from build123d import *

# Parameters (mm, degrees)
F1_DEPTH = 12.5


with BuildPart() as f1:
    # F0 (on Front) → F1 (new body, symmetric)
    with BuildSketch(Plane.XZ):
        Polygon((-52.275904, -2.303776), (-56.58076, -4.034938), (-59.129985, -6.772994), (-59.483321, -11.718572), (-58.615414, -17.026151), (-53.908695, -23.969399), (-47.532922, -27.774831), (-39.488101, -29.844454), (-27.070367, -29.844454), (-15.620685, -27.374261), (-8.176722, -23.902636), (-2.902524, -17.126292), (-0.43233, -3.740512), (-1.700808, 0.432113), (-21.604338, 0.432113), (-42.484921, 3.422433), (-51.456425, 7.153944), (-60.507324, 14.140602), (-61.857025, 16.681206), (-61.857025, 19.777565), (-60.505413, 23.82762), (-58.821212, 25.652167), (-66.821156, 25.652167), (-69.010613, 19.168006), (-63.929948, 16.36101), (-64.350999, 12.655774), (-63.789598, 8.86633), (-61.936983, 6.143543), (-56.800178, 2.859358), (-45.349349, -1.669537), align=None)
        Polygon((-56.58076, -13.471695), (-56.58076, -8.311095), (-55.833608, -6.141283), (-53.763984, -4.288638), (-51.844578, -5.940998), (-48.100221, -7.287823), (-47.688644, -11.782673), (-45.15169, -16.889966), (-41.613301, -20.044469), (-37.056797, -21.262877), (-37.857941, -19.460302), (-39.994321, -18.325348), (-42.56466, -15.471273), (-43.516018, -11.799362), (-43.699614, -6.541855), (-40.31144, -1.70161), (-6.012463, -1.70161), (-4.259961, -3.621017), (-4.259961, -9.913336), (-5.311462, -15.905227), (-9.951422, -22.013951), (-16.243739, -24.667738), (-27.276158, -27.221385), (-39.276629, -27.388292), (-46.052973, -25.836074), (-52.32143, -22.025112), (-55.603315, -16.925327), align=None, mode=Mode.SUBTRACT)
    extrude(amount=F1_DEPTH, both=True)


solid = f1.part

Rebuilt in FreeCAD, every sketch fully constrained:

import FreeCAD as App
import Part
import Sketcher

V = App.Vector
Q = App.Units.Quantity

doc = App.newDocument("Part")
body = doc.addObject("PartDesign::Body", "Body")

# Sketch on XZ plane
sketch1 = body.newObject("Sketcher::SketchObject", "Sketch")
sketch1.AttachmentSupport = (doc.getObject("XZ_Plane"), [""])
sketch1.MapMode = "FlatFace"
sketch1.addGeometry(Part.LineSegment(V(-52.275904, -2.303776, 0), V(-56.58076, -4.034938, 0)), False)
sketch1.addGeometry(Part.LineSegment(V(-56.58076, -4.034938, 0), V(-59.129985, -6.772994, 0)), False)
sketch1.addGeometry(Part.LineSegment(V(-59.129985, -6.772994, 0), V(-59.483321, -11.718572, 0)), False)
sketch1.addGeometry(Part.LineSegment(V(-59.483321, -11.718572, 0), V(-58.615414, -17.026151, 0)), False)
sketch1.addGeometry(Part.LineSegment(V(-58.615414, -17.026151, 0), V(-53.908695, -23.969399, 0)), False)
sketch1.addGeometry(Part.LineSegment(V(-53.908695, -23.969399, 0), V(-47.532922, -27.774831, 0)), False)
sketch1.addGeometry(Part.LineSegment(V(-47.532922, -27.774831, 0), V(-39.488101, -29.844454, 0)), False)
sketch1.addGeometry(Part.LineSegment(V(-39.488101, -29.844454, 0), V(-27.070367, -29.844454, 0)), False)
sketch1.addGeometry(Part.LineSegment(V(-27.070367, -29.844454, 0), V(-15.620685, -27.374261, 0)), False)
sketch1.addGeometry(Part.LineSegment(V(-15.620685, -27.374261, 0), V(-8.176722, -23.902636, 0)), False)
sketch1.addGeometry(Part.LineSegment(V(-8.176722, -23.902636, 0), V(-2.902524, -17.126292, 0)), False)
sketch1.addGeometry(Part.LineSegment(V(-2.902524, -17.126292, 0), V(-0.43233, -3.740512, 0)), False)
sketch1.addGeometry(Part.LineSegment(V(-0.43233, -3.740512, 0), V(-1.700808, 0.432113, 0)), False)
sketch1.addGeometry(Part.LineSegment(V(-1.700808, 0.432113, 0), V(-21.604338, 0.432113, 0)), False)
sketch1.addGeometry(Part.LineSegment(V(-21.604338, 0.432113, 0), V(-42.484921, 3.422433, 0)), False)
sketch1.addGeometry(Part.LineSegment(V(-42.484921, 3.422433, 0), V(-51.456425, 7.153944, 0)), False)
sketch1.addGeometry(Part.LineSegment(V(-51.456425, 7.153944, 0), V(-60.507324, 14.140602, 0)), False)
sketch1.addGeometry(Part.LineSegment(V(-60.507324, 14.140602, 0), V(-61.857025, 16.681206, 0)), False)
sketch1.addGeometry(Part.LineSegment(V(-61.857025, 16.681206, 0), V(-61.857025, 19.777565, 0)), False)
sketch1.addGeometry(Part.LineSegment(V(-61.857025, 19.777565, 0), V(-60.505413, 23.82762, 0)), False)
sketch1.addGeometry(Part.LineSegment(V(-60.505413, 23.82762, 0), V(-58.821212, 25.652167, 0)), False)
sketch1.addGeometry(Part.LineSegment(V(-58.821212, 25.652167, 0), V(-66.821156, 25.652167, 0)), False)
sketch1.addGeometry(Part.LineSegment(V(-66.821156, 25.652167, 0), V(-69.010613, 19.168006, 0)), False)
sketch1.addGeometry(Part.LineSegment(V(-69.010613, 19.168006, 0), V(-63.929948, 16.36101, 0)), False)
sketch1.addGeometry(Part.LineSegment(V(-63.929948, 16.36101, 0), V(-64.350999, 12.655774, 0)), False)
sketch1.addGeometry(Part.LineSegment(V(-64.350999, 12.655774, 0), V(-63.789598, 8.86633, 0)), False)
sketch1.addGeometry(Part.LineSegment(V(-63.789598, 8.86633, 0), V(-61.936983, 6.143543, 0)), False)
sketch1.addGeometry(Part.LineSegment(V(-61.936983, 6.143543, 0), V(-56.800178, 2.859358, 0)), False)
sketch1.addGeometry(Part.LineSegment(V(-56.800178, 2.859358, 0), V(-45.349349, -1.669537, 0)), False)
sketch1.addGeometry(Part.LineSegment(V(-45.349349, -1.669537, 0), V(-52.275904, -2.303776, 0)), False)
sketch1.addGeometry(Part.LineSegment(V(-55.603315, -16.925327, 0), V(-56.58076, -13.471695, 0)), False)
sketch1.addGeometry(Part.LineSegment(V(-56.58076, -13.471695, 0), V(-56.58076, -8.311095, 0)), False)
sketch1.addGeometry(Part.LineSegment(V(-56.58076, -8.311095, 0), V(-55.833608, -6.141283, 0)), False)
sketch1.addGeometry(Part.LineSegment(V(-55.833608, -6.141283, 0), V(-53.763984, -4.288638, 0)), False)
sketch1.addGeometry(Part.LineSegment(V(-53.763984, -4.288638, 0), V(-51.844578, -5.940998, 0)), False)
sketch1.addGeometry(Part.LineSegment(V(-51.844578, -5.940998, 0), V(-48.100221, -7.287823, 0)), False)
sketch1.addGeometry(Part.LineSegment(V(-48.100221, -7.287823, 0), V(-47.688644, -11.782673, 0)), False)
sketch1.addGeometry(Part.LineSegment(V(-47.688644, -11.782673, 0), V(-45.15169, -16.889966, 0)), False)
sketch1.addGeometry(Part.LineSegment(V(-45.15169, -16.889966, 0), V(-41.613301, -20.044469, 0)), False)
sketch1.addGeometry(Part.LineSegment(V(-41.613301, -20.044469, 0), V(-37.056797, -21.262877, 0)), False)
sketch1.addGeometry(Part.LineSegment(V(-37.056797, -21.262877, 0), V(-37.857941, -19.460302, 0)), False)
sketch1.addGeometry(Part.LineSegment(V(-37.857941, -19.460302, 0), V(-39.994321, -18.325348, 0)), False)
sketch1.addGeometry(Part.LineSegment(V(-39.994321, -18.325348, 0), V(-42.56466, -15.471273, 0)), False)
sketch1.addGeometry(Part.LineSegment(V(-42.56466, -15.471273, 0), V(-43.516018, -11.799362, 0)), False)
sketch1.addGeometry(Part.LineSegment(V(-43.516018, -11.799362, 0), V(-43.699614, -6.541855, 0)), False)
sketch1.addGeometry(Part.LineSegment(V(-43.699614, -6.541855, 0), V(-40.31144, -1.70161, 0)), False)
sketch1.addGeometry(Part.LineSegment(V(-40.31144, -1.70161, 0), V(-6.012463, -1.70161, 0)), False)
sketch1.addGeometry(Part.LineSegment(V(-6.012463, -1.70161, 0), V(-4.259961, -3.621017, 0)), False)
sketch1.addGeometry(Part.LineSegment(V(-4.259961, -3.621017, 0), V(-4.259961, -9.913336, 0)), False)
sketch1.addGeometry(Part.LineSegment(V(-4.259961, -9.913336, 0), V(-5.311462, -15.905227, 0)), False)
sketch1.addGeometry(Part.LineSegment(V(-5.311462, -15.905227, 0), V(-9.951422, -22.013951, 0)), False)
sketch1.addGeometry(Part.LineSegment(V(-9.951422, -22.013951, 0), V(-16.243739, -24.667738, 0)), False)
sketch1.addGeometry(Part.LineSegment(V(-16.243739, -24.667738, 0), V(-27.276158, -27.221385, 0)), False)
sketch1.addGeometry(Part.LineSegment(V(-27.276158, -27.221385, 0), V(-39.276629, -27.388292, 0)), False)
sketch1.addGeometry(Part.LineSegment(V(-39.276629, -27.388292, 0), V(-46.052973, -25.836074, 0)), False)
sketch1.addGeometry(Part.LineSegment(V(-46.052973, -25.836074, 0), V(-52.32143, -22.025112, 0)), False)
sketch1.addGeometry(Part.LineSegment(V(-52.32143, -22.025112, 0), V(-55.603315, -16.925327, 0)), False)
sketch1.addConstraint(Sketcher.Constraint("Coincident", 0, 2, 1, 1))
sketch1.addConstraint(Sketcher.Constraint("Coincident", 1, 2, 2, 1))
sketch1.addConstraint(Sketcher.Constraint("Coincident", 2, 2, 3, 1))
sketch1.addConstraint(Sketcher.Constraint("Coincident", 3, 2, 4, 1))
sketch1.addConstraint(Sketcher.Constraint("Coincident", 4, 2, 5, 1))
sketch1.addConstraint(Sketcher.Constraint("Coincident", 5, 2, 6, 1))
sketch1.addConstraint(Sketcher.Constraint("Coincident", 6, 2, 7, 1))
sketch1.addConstraint(Sketcher.Constraint("Coincident", 7, 2, 8, 1))
sketch1.addConstraint(Sketcher.Constraint("Coincident", 8, 2, 9, 1))
sketch1.addConstraint(Sketcher.Constraint("Coincident", 9, 2, 10, 1))
sketch1.addConstraint(Sketcher.Constraint("Coincident", 10, 2, 11, 1))
sketch1.addConstraint(Sketcher.Constraint("Coincident", 11, 2, 12, 1))
sketch1.addConstraint(Sketcher.Constraint("Coincident", 12, 2, 13, 1))
sketch1.addConstraint(Sketcher.Constraint("Coincident", 13, 2, 14, 1))
sketch1.addConstraint(Sketcher.Constraint("Coincident", 14, 2, 15, 1))
sketch1.addConstraint(Sketcher.Constraint("Coincident", 15, 2, 16, 1))
sketch1.addConstraint(Sketcher.Constraint("Coincident", 16, 2, 17, 1))
sketch1.addConstraint(Sketcher.Constraint("Coincident", 17, 2, 18, 1))
sketch1.addConstraint(Sketcher.Constraint("Coincident", 18, 2, 19, 1))
sketch1.addConstraint(Sketcher.Constraint("Coincident", 19, 2, 20, 1))
sketch1.addConstraint(Sketcher.Constraint("Coincident", 20, 2, 21, 1))
sketch1.addConstraint(Sketcher.Constraint("Coincident", 21, 2, 22, 1))
sketch1.addConstraint(Sketcher.Constraint("Coincident", 22, 2, 23, 1))
sketch1.addConstraint(Sketcher.Constraint("Coincident", 23, 2, 24, 1))
sketch1.addConstraint(Sketcher.Constraint("Coincident", 24, 2, 25, 1))
sketch1.addConstraint(Sketcher.Constraint("Coincident", 25, 2, 26, 1))
sketch1.addConstraint(Sketcher.Constraint("Coincident", 26, 2, 27, 1))
sketch1.addConstraint(Sketcher.Constraint("Coincident", 27, 2, 28, 1))
sketch1.addConstraint(Sketcher.Constraint("Coincident", 28, 2, 29, 1))
sketch1.addConstraint(Sketcher.Constraint("Coincident", 29, 2, 0, 1))
sketch1.addConstraint(Sketcher.Constraint("Coincident", 30, 2, 31, 1))
sketch1.addConstraint(Sketcher.Constraint("Coincident", 31, 2, 32, 1))
sketch1.addConstraint(Sketcher.Constraint("Coincident", 32, 2, 33, 1))
sketch1.addConstraint(Sketcher.Constraint("Coincident", 33, 2, 34, 1))
sketch1.addConstraint(Sketcher.Constraint("Coincident", 34, 2, 35, 1))
sketch1.addConstraint(Sketcher.Constraint("Coincident", 35, 2, 36, 1))
sketch1.addConstraint(Sketcher.Constraint("Coincident", 36, 2, 37, 1))
sketch1.addConstraint(Sketcher.Constraint("Coincident", 37, 2, 38, 1))
sketch1.addConstraint(Sketcher.Constraint("Coincident", 38, 2, 39, 1))
sketch1.addConstraint(Sketcher.Constraint("Coincident", 39, 2, 40, 1))
sketch1.addConstraint(Sketcher.Constraint("Coincident", 40, 2, 41, 1))
sketch1.addConstraint(Sketcher.Constraint("Coincident", 41, 2, 42, 1))
sketch1.addConstraint(Sketcher.Constraint("Coincident", 42, 2, 43, 1))
sketch1.addConstraint(Sketcher.Constraint("Coincident", 43, 2, 44, 1))
sketch1.addConstraint(Sketcher.Constraint("Coincident", 44, 2, 45, 1))
sketch1.addConstraint(Sketcher.Constraint("Coincident", 45, 2, 46, 1))
sketch1.addConstraint(Sketcher.Constraint("Coincident", 46, 2, 47, 1))
sketch1.addConstraint(Sketcher.Constraint("Coincident", 47, 2, 48, 1))
sketch1.addConstraint(Sketcher.Constraint("Coincident", 48, 2, 49, 1))
sketch1.addConstraint(Sketcher.Constraint("Coincident", 49, 2, 50, 1))
sketch1.addConstraint(Sketcher.Constraint("Coincident", 50, 2, 51, 1))
sketch1.addConstraint(Sketcher.Constraint("Coincident", 51, 2, 52, 1))
sketch1.addConstraint(Sketcher.Constraint("Coincident", 52, 2, 53, 1))
sketch1.addConstraint(Sketcher.Constraint("Coincident", 53, 2, 54, 1))
sketch1.addConstraint(Sketcher.Constraint("Coincident", 54, 2, 55, 1))
sketch1.addConstraint(Sketcher.Constraint("Coincident", 55, 2, 56, 1))
sketch1.addConstraint(Sketcher.Constraint("Coincident", 56, 2, 30, 1))
sketch1.addConstraint(Sketcher.Constraint("Horizontal", 7))
sketch1.addConstraint(Sketcher.Constraint("Horizontal", 13))
sketch1.addConstraint(Sketcher.Constraint("Vertical", 18))
sketch1.addConstraint(Sketcher.Constraint("Horizontal", 21))
sketch1.addConstraint(Sketcher.Constraint("Vertical", 31))
sketch1.addConstraint(Sketcher.Constraint("Horizontal", 46))
sketch1.addConstraint(Sketcher.Constraint("Vertical", 48))
sketch1.addConstraint(Sketcher.Constraint("Perpendicular", 29, 36))
sketch1.addConstraint(Sketcher.Constraint("Vertical", 0, 2, 30, 2))
sketch1.addConstraint(Sketcher.Constraint("Angle", 44, Q("91.999998 deg")))
sketch1.addConstraint(Sketcher.Constraint("DistanceY", 31, 1, 31, 2, 5.1606))
sketch1.addConstraint(Sketcher.Constraint("DistanceX", 24, 2, -1, 1, 64.350999))
sketch1.addConstraint(Sketcher.Constraint("DistanceX", 1, 2, 33, 2, 5.366001))
sketch1.addConstraint(Sketcher.Constraint("Distance", 4, 8.3882))
sketch1.addConstraint(Sketcher.Constraint("DistanceX", 13, 2, 13, 1, 19.90353))
sketch1.addConstraint(Sketcher.Constraint("DistanceY", 18, 1, 18, 2, 3.096359))
sketch1.addConstraint(Sketcher.Constraint("DistanceY", 48, 2, 48, 1, 6.292319))
sketch1.addConstraint(Sketcher.Constraint("DistanceY", 4, 2, -1, 1, 23.969399))
sketch1.addConstraint(Sketcher.Constraint("DistanceX", 6, 2, -1, 1, 39.488101))
sketch1.addConstraint(Sketcher.Constraint("DistanceX", 38, 2, -1, 1, 41.613301))
sketch1.addConstraint(Sketcher.Constraint("DistanceY", 40, 2, -1, 1, 19.460302))
sketch1.addConstraint(Sketcher.Constraint("DistanceX", 2, 2, 5, 2, 11.950399))
sketch1.addConstraint(Sketcher.Constraint("DistanceX", 5, 2, 9, 2, 39.3562))
sketch1.addConstraint(Sketcher.Constraint("DistanceX", 2, 2, 14, 2, 16.9984))
sketch1.addConstraint(Sketcher.Constraint("DistanceX", 16, 2, 15, 2, 9.050899))
sketch1.addConstraint(Sketcher.Constraint("DistanceX", 17, 2, 16, 2, 1.349701))
sketch1.addConstraint(Sketcher.Constraint("DistanceY", 1, 2, 17, 2, 23.4542))
sketch1.addConstraint(Sketcher.Constraint("DistanceX", 19, 2, 20, 2, 1.684201))
sketch1.addConstraint(Sketcher.Constraint("DistanceY", 18, 2, 20, 2, 5.874602))
sketch1.addConstraint(Sketcher.Constraint("DistanceY", 17, 2, 22, 2, 2.4868))
sketch1.addConstraint(Sketcher.Constraint("DistanceX", 22, 2, 19, 2, 8.5052))
sketch1.addConstraint(Sketcher.Constraint("DistanceX", 24, 2, 25, 2, 0.561401))
sketch1.addConstraint(Sketcher.Constraint("DistanceY", 26, 2, 15, 2, 1.010401))
sketch1.addConstraint(Sketcher.Constraint("DistanceY", 0, 2, 28, 2, 2.365401))
sketch1.addConstraint(Sketcher.Constraint("DistanceY", 30, 2, 1, 2, 6.698701))
sketch1.addConstraint(Sketcher.Constraint("DistanceY", 33, 2, 0, 2, 0.2537))
sketch1.addConstraint(Sketcher.Constraint("DistanceY", 42, 2, 36, 2, 3.6886))
sketch1.addConstraint(Sketcher.Constraint("DistanceY", 11, 2, 46, 2, 2.038902))
sketch1.addConstraint(Sketcher.Constraint("DistanceX", 49, 2, 48, 2, 1.051501))
sketch1.addConstraint(Sketcher.Constraint("DistanceX", 50, 2, 9, 2, 1.7747))
sketch1.addConstraint(Sketcher.Constraint("DistanceX", 50, 2, 10, 2, 7.048898))
sketch1.addConstraint(Sketcher.Constraint("DistanceY", 51, 2, 9, 2, 0.765102))
sketch1.addConstraint(Sketcher.Constraint("DistanceX", 3, 2, 56, 2, 3.012099))
sketch1.addConstraint(Sketcher.Constraint("Distance", 3, 5.378072))
sketch1.addConstraint(Sketcher.Constraint("Distance", 5, 7.425079))
sketch1.addConstraint(Sketcher.Constraint("Distance", 14, 21.093619))
sketch1.addConstraint(Sketcher.Constraint("Distance", 26, 3.293289))
sketch1.addConstraint(Sketcher.Constraint("Distance", 28, 12.31391))
sketch1.addConstraint(Sketcher.Constraint("Distance", 29, 6.955532))
sketch1.addConstraint(Sketcher.Constraint("Distance", 34, 2.532669))
sketch1.addConstraint(Sketcher.Constraint("Distance", 37, 5.702682))
sketch1.addConstraint(Sketcher.Constraint("Distance", 40, 1.972589))
sketch1.addConstraint(Sketcher.Constraint("Distance", 41, 2.41914))
sketch1.addConstraint(Sketcher.Constraint("Distance", 44, 5.260712))
sketch1.addConstraint(Sketcher.Constraint("Distance", 53, 12.001632))
sketch1.addConstraint(Sketcher.Constraint("Distance", 54, 6.95185))
sketch1.addConstraint(Sketcher.Constraint("DistanceX", 7, 1, 7, 2, 12.417734))
sketch1.addConstraint(Sketcher.Constraint("DistanceX", 21, 2, 21, 1, 7.999944))
sketch1.addConstraint(Sketcher.Constraint("DistanceX", 46, 1, 46, 2, 34.298977))
sketch1.addConstraint(Sketcher.Constraint("DistanceX", 0, 2, -1, 1, 56.58076))
sketch1.addConstraint(Sketcher.Constraint("DistanceY", 0, 2, -1, 1, 4.034938))
sketch1.addConstraint(Sketcher.Constraint("DistanceX", 2, 2, -1, 1, 59.483321))
sketch1.addConstraint(Sketcher.Constraint("DistanceY", 3, 2, -1, 1, 17.026151))
sketch1.addConstraint(Sketcher.Constraint("DistanceY", 5, 2, -1, 1, 27.774831))
sketch1.addConstraint(Sketcher.Constraint("DistanceY", 8, 2, -1, 1, 27.374261))
sketch1.addConstraint(Sketcher.Constraint("DistanceY", 10, 2, -1, 1, 17.126292))
sketch1.addConstraint(Sketcher.Constraint("DistanceX", 11, 2, -1, 1, 0.43233))
sketch1.addConstraint(Sketcher.Constraint("DistanceY", 11, 2, -1, 1, 3.740512))
sketch1.addConstraint(Sketcher.Constraint("DistanceX", 12, 2, -1, 1, 1.700808))
sketch1.addConstraint(Sketcher.Constraint("DistanceY", -1, 1, 19, 2, 23.82762))
sketch1.addConstraint(Sketcher.Constraint("DistanceX", 23, 2, -1, 1, 63.929948))
sketch1.addConstraint(Sketcher.Constraint("DistanceY", -1, 1, 23, 2, 16.36101))
sketch1.addConstraint(Sketcher.Constraint("DistanceY", -1, 1, 25, 2, 8.86633))
sketch1.addConstraint(Sketcher.Constraint("DistanceX", 27, 2, -1, 1, 56.800178))
sketch1.addConstraint(Sketcher.Constraint("DistanceX", 28, 2, -1, 1, 45.349349))
sketch1.addConstraint(Sketcher.Constraint("DistanceX", 35, 2, -1, 1, 48.100221))
sketch1.addConstraint(Sketcher.Constraint("DistanceX", 37, 2, -1, 1, 45.15169))
sketch1.addConstraint(Sketcher.Constraint("DistanceY", 38, 2, -1, 1, 20.044469))
sketch1.addConstraint(Sketcher.Constraint("DistanceX", 40, 2, -1, 1, 37.857941))
sketch1.addConstraint(Sketcher.Constraint("DistanceX", 41, 2, -1, 1, 39.994321))
sketch1.addConstraint(Sketcher.Constraint("DistanceX", 42, 2, -1, 1, 42.56466))
sketch1.addConstraint(Sketcher.Constraint("DistanceX", 43, 2, -1, 1, 43.516018))
sketch1.addConstraint(Sketcher.Constraint("DistanceX", 45, 2, -1, 1, 40.31144))
sketch1.addConstraint(Sketcher.Constraint("DistanceX", 47, 2, -1, 1, 4.259961))
sketch1.addConstraint(Sketcher.Constraint("DistanceY", 50, 2, -1, 1, 22.013951))
sketch1.addConstraint(Sketcher.Constraint("DistanceX", 51, 2, -1, 1, 16.243739))
sketch1.addConstraint(Sketcher.Constraint("DistanceY", 51, 2, -1, 1, 24.667738))
sketch1.addConstraint(Sketcher.Constraint("DistanceX", 53, 2, -1, 1, 39.276629))
sketch1.addConstraint(Sketcher.Constraint("DistanceY", 53, 2, -1, 1, 27.388292))
sketch1.addConstraint(Sketcher.Constraint("DistanceX", 55, 2, -1, 1, 52.32143))
sketch1.addConstraint(Sketcher.Constraint("DistanceY", 55, 2, -1, 1, 22.025112))
sketch1.addConstraint(Sketcher.Constraint("DistanceY", 2, 2, 1, 2, 4.945578))
sketch1.addConstraint(Sketcher.Constraint("DistanceX", 1, 2, 3, 2, 0.514571))
sketch1.addConstraint(Sketcher.Constraint("DistanceY", 6, 2, 2, 2, 18.125882))
sketch1.addConstraint(Sketcher.Constraint("DistanceX", 4, 2, 8, 2, 38.28801))
sketch1.addConstraint(Sketcher.Constraint("DistanceY", 9, 2, 12, 2, 24.334749))
sketch1.addConstraint(Sketcher.Constraint("DistanceY", 14, 2, 15, 2, 3.731511))
sketch1.addConstraint(Sketcher.Constraint("DistanceX", 1, 2, 15, 2, 7.67356))
sketch1.addConstraint(Sketcher.Constraint("DistanceY", 0, 2, 16, 2, 18.17554))
sketch1.addConstraint(Sketcher.Constraint("DistanceX", 16, 2, 19, 2, 0.001911))
sketch1.addConstraint(Sketcher.Constraint("DistanceY", 24, 2, 16, 2, 1.484828))
sketch1.addConstraint(Sketcher.Constraint("DistanceY", 29, 2, 28, 2, 0.634239))
sketch1.addConstraint(Sketcher.Constraint("DistanceX", 0, 2, 32, 2, 0.747152))
sketch1.addConstraint(Sketcher.Constraint("DistanceY", 1, 2, 32, 2, 0.631711))
sketch1.addConstraint(Sketcher.Constraint("DistanceY", 34, 2, 33, 2, 1.65236))
sketch1.addConstraint(Sketcher.Constraint("DistanceY", 35, 2, 32, 2, 1.14654))
sketch1.addConstraint(Sketcher.Constraint("DistanceY", 36, 2, 35, 2, 4.49485))
sketch1.addConstraint(Sketcher.Constraint("DistanceY", 39, 2, 38, 2, 1.218408))
sketch1.addConstraint(Sketcher.Constraint("DistanceY", 42, 2, 43, 2, 3.671911))
sketch1.addConstraint(Sketcher.Constraint("DistanceY", 47, 2, 12, 2, 4.05313))
sketch1.addConstraint(Sketcher.Constraint("DistanceY", 49, 2, 48, 2, 5.991891))
sketch1.addConstraint(Sketcher.Constraint("DistanceX", 52, 2, 7, 2, 0.205791))
sketch1.addConstraint(Sketcher.Constraint("DistanceX", 5, 2, 54, 2, 1.479949))
sketch1.addConstraint(Sketcher.Constraint("DistanceY", 56, 2, 30, 2, 3.453632))
pad1 = body.newObject("PartDesign::Pad", "Pad")
pad1.Profile = sketch1
pad1.Length = 25
pad1.Midplane = True

doc.recompute()
